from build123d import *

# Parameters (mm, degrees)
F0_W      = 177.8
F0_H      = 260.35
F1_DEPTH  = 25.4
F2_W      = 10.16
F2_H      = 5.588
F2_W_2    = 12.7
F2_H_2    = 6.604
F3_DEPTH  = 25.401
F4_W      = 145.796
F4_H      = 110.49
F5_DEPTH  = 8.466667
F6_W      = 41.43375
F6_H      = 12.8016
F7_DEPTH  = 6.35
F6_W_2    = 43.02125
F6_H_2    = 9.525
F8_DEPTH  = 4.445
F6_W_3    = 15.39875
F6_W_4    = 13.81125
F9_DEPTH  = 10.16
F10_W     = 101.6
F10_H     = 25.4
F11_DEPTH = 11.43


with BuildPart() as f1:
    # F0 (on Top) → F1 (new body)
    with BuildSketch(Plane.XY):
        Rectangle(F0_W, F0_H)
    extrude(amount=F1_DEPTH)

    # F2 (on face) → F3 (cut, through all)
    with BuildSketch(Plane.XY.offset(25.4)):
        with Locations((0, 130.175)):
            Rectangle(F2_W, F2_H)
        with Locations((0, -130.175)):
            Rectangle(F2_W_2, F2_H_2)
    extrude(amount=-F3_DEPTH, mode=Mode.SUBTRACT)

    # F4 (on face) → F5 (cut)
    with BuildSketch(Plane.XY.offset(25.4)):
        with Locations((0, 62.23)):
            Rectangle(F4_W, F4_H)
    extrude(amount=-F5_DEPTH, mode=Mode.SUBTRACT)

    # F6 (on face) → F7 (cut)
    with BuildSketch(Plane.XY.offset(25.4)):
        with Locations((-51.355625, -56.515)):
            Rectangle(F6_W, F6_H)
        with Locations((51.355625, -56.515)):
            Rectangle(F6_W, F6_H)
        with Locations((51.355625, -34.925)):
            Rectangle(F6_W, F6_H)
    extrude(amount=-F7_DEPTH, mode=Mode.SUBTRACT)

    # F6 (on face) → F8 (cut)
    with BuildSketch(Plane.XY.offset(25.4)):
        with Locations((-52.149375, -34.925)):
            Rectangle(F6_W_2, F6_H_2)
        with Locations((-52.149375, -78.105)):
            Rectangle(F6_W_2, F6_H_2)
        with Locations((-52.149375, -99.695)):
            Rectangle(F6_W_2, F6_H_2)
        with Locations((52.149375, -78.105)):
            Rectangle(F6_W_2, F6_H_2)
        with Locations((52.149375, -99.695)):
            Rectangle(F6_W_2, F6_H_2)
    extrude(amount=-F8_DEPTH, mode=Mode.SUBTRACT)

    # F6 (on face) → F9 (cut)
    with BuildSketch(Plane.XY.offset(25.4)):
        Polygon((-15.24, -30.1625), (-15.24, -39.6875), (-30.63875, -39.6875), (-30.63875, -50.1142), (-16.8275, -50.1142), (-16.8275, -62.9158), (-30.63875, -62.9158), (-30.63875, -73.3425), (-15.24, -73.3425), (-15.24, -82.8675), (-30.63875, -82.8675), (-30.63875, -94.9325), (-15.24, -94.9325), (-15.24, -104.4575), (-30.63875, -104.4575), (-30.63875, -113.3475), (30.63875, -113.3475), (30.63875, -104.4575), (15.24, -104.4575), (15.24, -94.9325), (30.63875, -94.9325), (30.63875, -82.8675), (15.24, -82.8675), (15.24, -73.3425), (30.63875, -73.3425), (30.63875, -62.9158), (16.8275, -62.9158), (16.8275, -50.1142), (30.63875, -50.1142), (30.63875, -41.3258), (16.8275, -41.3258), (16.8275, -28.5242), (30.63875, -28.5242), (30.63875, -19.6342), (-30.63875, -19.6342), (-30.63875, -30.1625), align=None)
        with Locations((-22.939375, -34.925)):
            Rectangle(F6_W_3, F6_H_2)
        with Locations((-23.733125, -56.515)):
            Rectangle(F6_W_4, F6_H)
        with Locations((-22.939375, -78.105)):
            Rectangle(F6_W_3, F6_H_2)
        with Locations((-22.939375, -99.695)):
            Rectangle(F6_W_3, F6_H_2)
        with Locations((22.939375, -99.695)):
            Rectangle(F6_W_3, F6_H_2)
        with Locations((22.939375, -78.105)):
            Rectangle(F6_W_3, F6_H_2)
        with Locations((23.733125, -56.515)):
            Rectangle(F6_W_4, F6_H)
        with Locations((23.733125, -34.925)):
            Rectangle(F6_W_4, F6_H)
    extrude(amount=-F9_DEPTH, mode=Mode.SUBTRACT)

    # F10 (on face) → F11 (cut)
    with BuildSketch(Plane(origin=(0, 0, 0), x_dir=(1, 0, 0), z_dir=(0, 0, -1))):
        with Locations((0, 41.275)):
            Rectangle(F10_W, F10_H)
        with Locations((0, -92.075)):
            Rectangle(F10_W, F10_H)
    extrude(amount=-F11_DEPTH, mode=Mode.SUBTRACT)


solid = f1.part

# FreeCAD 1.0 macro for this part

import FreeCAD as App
import Part
import Sketcher
Q = App.Units.Quantity


def add_polygon(sketch, points):
    """Adds a closed chain of lines whose ends are joined by coincident constraints."""
    first, n = sketch.GeometryCount, len(points)
    for a, b in zip(points, points[1:] + points[:1]):
        sketch.addGeometry(Part.LineSegment(App.Vector(*a, 0), App.Vector(*b, 0)), False)
    for i in range(n):
        sketch.addConstraint(Sketcher.Constraint("Coincident", first + i, 2, first + (i + 1) % n, 1))

doc = App.newDocument("Part")
body = doc.addObject("PartDesign::Body", "Body")

sketch1 = body.newObject("Sketcher::SketchObject", "Sketch")
sketch1.AttachmentSupport = (doc.getObject("XY_Plane"), [""])
sketch1.MapMode = "FlatFace"
add_polygon(sketch1, [(-88.9, 130.175), (-88.9, -130.175), (88.9, -130.175), (88.9, 130.175)])
sketch1.addConstraint([
    Sketcher.Constraint("Vertical", 0),
    Sketcher.Constraint("Horizontal", 1),
    Sketcher.Constraint("Vertical", 2),
    Sketcher.Constraint("Horizontal", 3),
    Sketcher.Constraint("Symmetric", 0, 2, 2, 2, -1, 1),
    Sketcher.Constraint("DistanceX", 1, 1, 1, 2, Q("7 in")),
    Sketcher.Constraint("DistanceY", 0, 2, 0, 1, Q("10.25 in")),
])
pad1 = body.newObject("PartDesign::Pad", "Pad")
pad1.Profile = sketch1
pad1.Length = Q("1 in")

sketch2 = body.newObject("Sketcher::SketchObject", "Sketch001")
sketch2.AttachmentSupport = (doc.getObject("XY_Plane"), [""])
sketch2.MapMode = "FlatFace"
sketch2.AttachmentOffset = App.Placement(App.Vector(0, 0, 1 * 25.4), App.Rotation())
add_polygon(sketch2, [(-5.08, 132.969), (-5.08, 127.381), (5.08, 127.381), (5.08, 132.969)])
add_polygon(sketch2, [(-6.35, -126.873), (-6.35, -133.477), (6.35, -133.477), (6.35, -126.873)])
sketch2.addConstraint([
    Sketcher.Constraint("Vertical", 0),
    Sketcher.Constraint("Horizontal", 1),
    Sketcher.Constraint("Vertical", 2),
    Sketcher.Constraint("Horizontal", 3),
    Sketcher.Constraint("Vertical", 4),
    Sketcher.Constraint("Horizontal", 5),
    Sketcher.Constraint("Vertical", 6),
    Sketcher.Constraint("Horizontal", 7),
    Sketcher.Constraint("DistanceX", 1, 1, 1, 2, Q("0.4 in")),
    Sketcher.Constraint("DistanceX", 5, 1, 5, 2, Q("0.5 in")),
    Sketcher.Constraint("DistanceY", 0, 2, 0, 1, Q("0.22 in")),
    Sketcher.Constraint("DistanceY", 4, 2, 4, 1, Q("0.26 in")),
    Sketcher.Constraint("DistanceX", 0, 2, -1, 1, Q("0.2 in")),
    Sketcher.Constraint("DistanceX", 4, 2, -1, 1, Q("0.25 in")),
    Sketcher.Constraint("DistanceY", 4, 2, 0, 2, Q("10.27 in")),
    Sketcher.Constraint("DistanceY", -1, 1, 0, 2, Q("5.015 in")),
])
pocket1 = body.newObject("PartDesign::Pocket", "Pocket")
pocket1.Profile = sketch2
pocket1.Type = "ThroughAll"

sketch3 = body.newObject("Sketcher::SketchObject", "Sketch002")
sketch3.AttachmentSupport = (doc.getObject("XY_Plane"), [""])
sketch3.MapMode = "FlatFace"
sketch3.AttachmentOffset = App.Placement(App.Vector(0, 0, 1 * 25.4), App.Rotation())
add_polygon(sketch3, [(-72.898, 117.475), (-72.898, 6.985), (72.898, 6.985), (72.898, 117.475)])
sketch3.addConstraint([
    Sketcher.Constraint("Vertical", 0),
    Sketcher.Constraint("Horizontal", 1),
    Sketcher.Constraint("Vertical", 2),
    Sketcher.Constraint("Horizontal", 3),
    Sketcher.Constraint("DistanceX", 1, 1, 1, 2, Q("5.74 in")),
    Sketcher.Constraint("DistanceY", 0, 2, 0, 1, Q("4.35 in")),
    Sketcher.Constraint("DistanceX", 0, 2, -1, 1, Q("2.87 in")),
    Sketcher.Constraint("DistanceY", -1, 1, 0, 2, Q("0.275 in")),
])
pocket2 = body.newObject("PartDesign::Pocket", "Pocket001")
pocket2.Profile = sketch3
pocket2.Length = 8.466667

sketch4 = body.newObject("Sketcher::SketchObject", "Sketch003")
sketch4.AttachmentSupport = (doc.getObject("XY_Plane"), [""])
sketch4.MapMode = "FlatFace"
sketch4.AttachmentOffset = App.Placement(App.Vector(0, 0, 1 * 25.4), App.Rotation())
add_polygon(sketch4, [(-72.0725, -50.1142), (-72.0725, -62.9158), (-30.63875, -62.9158), (-30.63875, -50.1142)])
add_polygon(sketch4, [(30.63875, -50.1142), (30.63875, -62.9158), (72.0725, -62.9158), (72.0725, -50.1142)])
add_polygon(sketch4, [(30.63875, -28.5242), (30.63875, -41.3258), (72.0725, -41.3258), (72.0725, -28.5242)])
sketch4.addConstraint([
    Sketcher.Constraint("Vertical", 0),
    Sketcher.Constraint("Horizontal", 1),
    Sketcher.Constraint("Vertical", 2),
    Sketcher.Constraint("Horizontal", 3),
    Sketcher.Constraint("Vertical", 4),
    Sketcher.Constraint("Horizontal", 5),
    Sketcher.Constraint("Vertical", 6),
    Sketcher.Constraint("Horizontal", 7),
    Sketcher.Constraint("Vertical", 8),
    Sketcher.Constraint("Horizontal", 9),
    Sketcher.Constraint("Vertical", 10),
    Sketcher.Constraint("Horizontal", 11),
    Sketcher.Constraint("Symmetric", 1, 2, 4, 2, -2),
    Sketcher.Constraint("Symmetric", 3, 2, 6, 2, -2),
    Sketcher.Constraint("Vertical", 7, 2, 8, 2),
    Sketcher.Constraint("Vertical", 6, 2, 9, 2),
    Sketcher.Constraint("Equal", 6, 8),
    Sketcher.Constraint("DistanceY", 0, 2, 0, 1, Q("0.504 in")),
    Sketcher.Constraint("DistanceY", 4, 2, 8, 2, Q("0.85 in")),
    Sketcher.Constraint("DistanceY", 0, 2, -1, 1, Q("2.477 in")),
    Sketcher.Constraint("DistanceX", 0, 2, 5, 2, Q("5.675 in")),
    Sketcher.Constraint("DistanceX", 1, 2, 4, 2, Q("2.4125 in")),
])
pocket3 = body.newObject("PartDesign::Pocket", "Pocket002")
pocket3.Profile = sketch4
pocket3.Length = Q("0.25 in")

sketch5 = body.newObject("Sketcher::SketchObject", "Sketch004")
sketch5.AttachmentSupport = (doc.getObject("XY_Plane"), [""])
sketch5.MapMode = "FlatFace"
sketch5.AttachmentOffset = App.Placement(App.Vector(0, 0, 1 * 25.4), App.Rotation())
add_polygon(sketch5, [(-73.66, -30.1625), (-73.66, -39.6875), (-30.63875, -39.6875), (-30.63875, -30.1625)])
add_polygon(sketch5, [(-73.66, -73.3425), (-73.66, -82.8675), (-30.63875, -82.8675), (-30.63875, -73.3425)])
add_polygon(sketch5, [(-73.66, -94.9325), (-73.66, -104.4575), (-30.63875, -104.4575), (-30.63875, -94.9325)])
add_polygon(sketch5, [(30.63875, -73.3425), (30.63875, -82.8675), (73.66, -82.8675), (73.66, -73.3425)])
add_polygon(sketch5, [(30.63875, -94.9325), (30.63875, -104.4575), (73.66, -104.4575), (73.66, -94.9325)])
sketch5.addConstraint([
    Sketcher.Constraint("Vertical", 0),
    Sketcher.Constraint("Horizontal", 1),
    Sketcher.Constraint("Vertical", 2),
    Sketcher.Constraint("Horizontal", 3),
    Sketcher.Constraint("Vertical", 4),
    Sketcher.Constraint("Horizontal", 5),
    Sketcher.Constraint("Vertical", 6),
    Sketcher.Constraint("Horizontal", 7),
    Sketcher.Constraint("Vertical", 8),
    Sketcher.Constraint("Horizontal", 9),
    Sketcher.Constraint("Vertical", 10),
    Sketcher.Constraint("Horizontal", 11),
    Sketcher.Constraint("Vertical", 12),
    Sketcher.Constraint("Horizontal", 13),
    Sketcher.Constraint("Vertical", 14),
    Sketcher.Constraint("Horizontal", 15),
    Sketcher.Constraint("Vertical", 16),
    Sketcher.Constraint("Horizontal", 17),
    Sketcher.Constraint("Vertical", 18),
    Sketcher.Constraint("Horizontal", 19),
    Sketcher.Constraint("Symmetric", 5, 2, 12, 2, -2),
    Sketcher.Constraint("Symmetric", 7, 2, 14, 2, -2),
    Sketcher.Constraint("Symmetric", 9, 2, 16, 2, -2),
    Sketcher.Constraint("Symmetric", 11, 2, 18, 2, -2),
    Sketcher.Constraint("Vertical", 3, 2, 4, 2),
    Sketcher.Constraint("Vertical", 2, 2, 5, 2),
    Sketcher.Constraint("Vertical", 7, 2, 8, 2),
    Sketcher.Constraint("Vertical", 6, 2, 9, 2),
    Sketcher.Constraint("Equal", 2, 4),
    Sketcher.Constraint("Equal", 6, 8),
    Sketcher.Constraint("DistanceX", 0, 2, -1, 1, Q("2.9 in")),
    Sketcher.Constraint("DistanceY", 4, 2, 0, 2, Q("1.7 in")),
    Sketcher.Constraint("DistanceY", 0, 2, 0, 1, Q("0.375 in")),
    Sketcher.Constraint("DistanceY", 8, 2, 4, 2, Q("0.85 in")),
    Sketcher.Constraint("DistanceY", 0, 2, -1, 1, Q("1.5625 in")),
    Sketcher.Constraint("DistanceX", 5, 2, 12, 2, Q("2.4125 in")),
])
pocket4 = body.newObject("PartDesign::Pocket", "Pocket003")
pocket4.Profile = sketch5
pocket4.Length = Q("0.175 in")

sketch6 = body.newObject("Sketcher::SketchObject", "Sketch005")
sketch6.AttachmentSupport = (doc.getObject("XY_Plane"), [""])
sketch6.MapMode = "FlatFace"
sketch6.AttachmentOffset = App.Placement(App.Vector(0, 0, 1 * 25.4), App.Rotation())
add_polygon(sketch6, [(-30.63875, -113.3475), (30.63875, -113.3475), (30.63875, -19.6342), (-30.63875, -19.6342)])
sketch6.addConstraint([
    Sketcher.Constraint("Horizontal", 0),
    Sketcher.Constraint("Vertical", 1),
    Sketcher.Constraint("Horizontal", 2),
    Sketcher.Constraint("Vertical", 3),
    Sketcher.Constraint("DistanceX", 0, 1, 0, 2, Q("2.4125 in")),
    Sketcher.Constraint("DistanceY", 1, 1, 1, 2, Q("3.6895 in")),
    Sketcher.Constraint("DistanceY", 1, 2, -1, 1, Q("0.773 in")),
    Sketcher.Constraint("DistanceX", -1, 1, 0, 2, Q("30.63875 mm")),
])
pocket5 = body.newObject("PartDesign::Pocket", "Pocket004")
pocket5.Profile = sketch6
pocket5.Length = Q("0.4 in")

sketch7 = body.newObject("Sketcher::SketchObject", "Sketch006")
sketch7.AttachmentSupport = (doc.getObject("XY_Plane"), [""])
sketch7.MapMode = "FlatFace"
add_polygon(sketch7, [(-50.8, -53.975), (-50.8, -28.575), (50.8, -28.575), (50.8, -53.975)])
add_polygon(sketch7, [(-50.8, 79.375), (-50.8, 104.775), (50.8, 104.775), (50.8, 79.375)])
sketch7.addConstraint([
    Sketcher.Constraint("Vertical", 0),
    Sketcher.Constraint("Horizontal", 1),
    Sketcher.Constraint("Vertical", 2),
    Sketcher.Constraint("Horizontal", 3),
    Sketcher.Constraint("Vertical", 4),
    Sketcher.Constraint("Horizontal", 5),
    Sketcher.Constraint("Vertical", 6),
    Sketcher.Constraint("Horizontal", 7),
    Sketcher.Constraint("Vertical", 3, 2, 4, 2),
    Sketcher.Constraint("Vertical", 2, 2, 5, 2),
    Sketcher.Constraint("Equal", 2, 4),
    Sketcher.Constraint("DistanceX", 1, 1, 1, 2, Q("4 in")),
    Sketcher.Constraint("DistanceY", 0, 1, 0, 2, Q("1 in")),
    Sketcher.Constraint("DistanceX", 0, 2, -1, 1, Q("2 in")),
    Sketcher.Constraint("DistanceY", 0, 2, 4, 2, Q("5.25 in")),
    Sketcher.Constraint("DistanceY", 0, 2, -1, 1, Q("1.125 in")),
])
pocket6 = body.newObject("PartDesign::Pocket", "Pocket005")
pocket6.Profile = sketch7
pocket6.Length = Q("0.45 in")
pocket6.Reversed = True

doc.recompute()
